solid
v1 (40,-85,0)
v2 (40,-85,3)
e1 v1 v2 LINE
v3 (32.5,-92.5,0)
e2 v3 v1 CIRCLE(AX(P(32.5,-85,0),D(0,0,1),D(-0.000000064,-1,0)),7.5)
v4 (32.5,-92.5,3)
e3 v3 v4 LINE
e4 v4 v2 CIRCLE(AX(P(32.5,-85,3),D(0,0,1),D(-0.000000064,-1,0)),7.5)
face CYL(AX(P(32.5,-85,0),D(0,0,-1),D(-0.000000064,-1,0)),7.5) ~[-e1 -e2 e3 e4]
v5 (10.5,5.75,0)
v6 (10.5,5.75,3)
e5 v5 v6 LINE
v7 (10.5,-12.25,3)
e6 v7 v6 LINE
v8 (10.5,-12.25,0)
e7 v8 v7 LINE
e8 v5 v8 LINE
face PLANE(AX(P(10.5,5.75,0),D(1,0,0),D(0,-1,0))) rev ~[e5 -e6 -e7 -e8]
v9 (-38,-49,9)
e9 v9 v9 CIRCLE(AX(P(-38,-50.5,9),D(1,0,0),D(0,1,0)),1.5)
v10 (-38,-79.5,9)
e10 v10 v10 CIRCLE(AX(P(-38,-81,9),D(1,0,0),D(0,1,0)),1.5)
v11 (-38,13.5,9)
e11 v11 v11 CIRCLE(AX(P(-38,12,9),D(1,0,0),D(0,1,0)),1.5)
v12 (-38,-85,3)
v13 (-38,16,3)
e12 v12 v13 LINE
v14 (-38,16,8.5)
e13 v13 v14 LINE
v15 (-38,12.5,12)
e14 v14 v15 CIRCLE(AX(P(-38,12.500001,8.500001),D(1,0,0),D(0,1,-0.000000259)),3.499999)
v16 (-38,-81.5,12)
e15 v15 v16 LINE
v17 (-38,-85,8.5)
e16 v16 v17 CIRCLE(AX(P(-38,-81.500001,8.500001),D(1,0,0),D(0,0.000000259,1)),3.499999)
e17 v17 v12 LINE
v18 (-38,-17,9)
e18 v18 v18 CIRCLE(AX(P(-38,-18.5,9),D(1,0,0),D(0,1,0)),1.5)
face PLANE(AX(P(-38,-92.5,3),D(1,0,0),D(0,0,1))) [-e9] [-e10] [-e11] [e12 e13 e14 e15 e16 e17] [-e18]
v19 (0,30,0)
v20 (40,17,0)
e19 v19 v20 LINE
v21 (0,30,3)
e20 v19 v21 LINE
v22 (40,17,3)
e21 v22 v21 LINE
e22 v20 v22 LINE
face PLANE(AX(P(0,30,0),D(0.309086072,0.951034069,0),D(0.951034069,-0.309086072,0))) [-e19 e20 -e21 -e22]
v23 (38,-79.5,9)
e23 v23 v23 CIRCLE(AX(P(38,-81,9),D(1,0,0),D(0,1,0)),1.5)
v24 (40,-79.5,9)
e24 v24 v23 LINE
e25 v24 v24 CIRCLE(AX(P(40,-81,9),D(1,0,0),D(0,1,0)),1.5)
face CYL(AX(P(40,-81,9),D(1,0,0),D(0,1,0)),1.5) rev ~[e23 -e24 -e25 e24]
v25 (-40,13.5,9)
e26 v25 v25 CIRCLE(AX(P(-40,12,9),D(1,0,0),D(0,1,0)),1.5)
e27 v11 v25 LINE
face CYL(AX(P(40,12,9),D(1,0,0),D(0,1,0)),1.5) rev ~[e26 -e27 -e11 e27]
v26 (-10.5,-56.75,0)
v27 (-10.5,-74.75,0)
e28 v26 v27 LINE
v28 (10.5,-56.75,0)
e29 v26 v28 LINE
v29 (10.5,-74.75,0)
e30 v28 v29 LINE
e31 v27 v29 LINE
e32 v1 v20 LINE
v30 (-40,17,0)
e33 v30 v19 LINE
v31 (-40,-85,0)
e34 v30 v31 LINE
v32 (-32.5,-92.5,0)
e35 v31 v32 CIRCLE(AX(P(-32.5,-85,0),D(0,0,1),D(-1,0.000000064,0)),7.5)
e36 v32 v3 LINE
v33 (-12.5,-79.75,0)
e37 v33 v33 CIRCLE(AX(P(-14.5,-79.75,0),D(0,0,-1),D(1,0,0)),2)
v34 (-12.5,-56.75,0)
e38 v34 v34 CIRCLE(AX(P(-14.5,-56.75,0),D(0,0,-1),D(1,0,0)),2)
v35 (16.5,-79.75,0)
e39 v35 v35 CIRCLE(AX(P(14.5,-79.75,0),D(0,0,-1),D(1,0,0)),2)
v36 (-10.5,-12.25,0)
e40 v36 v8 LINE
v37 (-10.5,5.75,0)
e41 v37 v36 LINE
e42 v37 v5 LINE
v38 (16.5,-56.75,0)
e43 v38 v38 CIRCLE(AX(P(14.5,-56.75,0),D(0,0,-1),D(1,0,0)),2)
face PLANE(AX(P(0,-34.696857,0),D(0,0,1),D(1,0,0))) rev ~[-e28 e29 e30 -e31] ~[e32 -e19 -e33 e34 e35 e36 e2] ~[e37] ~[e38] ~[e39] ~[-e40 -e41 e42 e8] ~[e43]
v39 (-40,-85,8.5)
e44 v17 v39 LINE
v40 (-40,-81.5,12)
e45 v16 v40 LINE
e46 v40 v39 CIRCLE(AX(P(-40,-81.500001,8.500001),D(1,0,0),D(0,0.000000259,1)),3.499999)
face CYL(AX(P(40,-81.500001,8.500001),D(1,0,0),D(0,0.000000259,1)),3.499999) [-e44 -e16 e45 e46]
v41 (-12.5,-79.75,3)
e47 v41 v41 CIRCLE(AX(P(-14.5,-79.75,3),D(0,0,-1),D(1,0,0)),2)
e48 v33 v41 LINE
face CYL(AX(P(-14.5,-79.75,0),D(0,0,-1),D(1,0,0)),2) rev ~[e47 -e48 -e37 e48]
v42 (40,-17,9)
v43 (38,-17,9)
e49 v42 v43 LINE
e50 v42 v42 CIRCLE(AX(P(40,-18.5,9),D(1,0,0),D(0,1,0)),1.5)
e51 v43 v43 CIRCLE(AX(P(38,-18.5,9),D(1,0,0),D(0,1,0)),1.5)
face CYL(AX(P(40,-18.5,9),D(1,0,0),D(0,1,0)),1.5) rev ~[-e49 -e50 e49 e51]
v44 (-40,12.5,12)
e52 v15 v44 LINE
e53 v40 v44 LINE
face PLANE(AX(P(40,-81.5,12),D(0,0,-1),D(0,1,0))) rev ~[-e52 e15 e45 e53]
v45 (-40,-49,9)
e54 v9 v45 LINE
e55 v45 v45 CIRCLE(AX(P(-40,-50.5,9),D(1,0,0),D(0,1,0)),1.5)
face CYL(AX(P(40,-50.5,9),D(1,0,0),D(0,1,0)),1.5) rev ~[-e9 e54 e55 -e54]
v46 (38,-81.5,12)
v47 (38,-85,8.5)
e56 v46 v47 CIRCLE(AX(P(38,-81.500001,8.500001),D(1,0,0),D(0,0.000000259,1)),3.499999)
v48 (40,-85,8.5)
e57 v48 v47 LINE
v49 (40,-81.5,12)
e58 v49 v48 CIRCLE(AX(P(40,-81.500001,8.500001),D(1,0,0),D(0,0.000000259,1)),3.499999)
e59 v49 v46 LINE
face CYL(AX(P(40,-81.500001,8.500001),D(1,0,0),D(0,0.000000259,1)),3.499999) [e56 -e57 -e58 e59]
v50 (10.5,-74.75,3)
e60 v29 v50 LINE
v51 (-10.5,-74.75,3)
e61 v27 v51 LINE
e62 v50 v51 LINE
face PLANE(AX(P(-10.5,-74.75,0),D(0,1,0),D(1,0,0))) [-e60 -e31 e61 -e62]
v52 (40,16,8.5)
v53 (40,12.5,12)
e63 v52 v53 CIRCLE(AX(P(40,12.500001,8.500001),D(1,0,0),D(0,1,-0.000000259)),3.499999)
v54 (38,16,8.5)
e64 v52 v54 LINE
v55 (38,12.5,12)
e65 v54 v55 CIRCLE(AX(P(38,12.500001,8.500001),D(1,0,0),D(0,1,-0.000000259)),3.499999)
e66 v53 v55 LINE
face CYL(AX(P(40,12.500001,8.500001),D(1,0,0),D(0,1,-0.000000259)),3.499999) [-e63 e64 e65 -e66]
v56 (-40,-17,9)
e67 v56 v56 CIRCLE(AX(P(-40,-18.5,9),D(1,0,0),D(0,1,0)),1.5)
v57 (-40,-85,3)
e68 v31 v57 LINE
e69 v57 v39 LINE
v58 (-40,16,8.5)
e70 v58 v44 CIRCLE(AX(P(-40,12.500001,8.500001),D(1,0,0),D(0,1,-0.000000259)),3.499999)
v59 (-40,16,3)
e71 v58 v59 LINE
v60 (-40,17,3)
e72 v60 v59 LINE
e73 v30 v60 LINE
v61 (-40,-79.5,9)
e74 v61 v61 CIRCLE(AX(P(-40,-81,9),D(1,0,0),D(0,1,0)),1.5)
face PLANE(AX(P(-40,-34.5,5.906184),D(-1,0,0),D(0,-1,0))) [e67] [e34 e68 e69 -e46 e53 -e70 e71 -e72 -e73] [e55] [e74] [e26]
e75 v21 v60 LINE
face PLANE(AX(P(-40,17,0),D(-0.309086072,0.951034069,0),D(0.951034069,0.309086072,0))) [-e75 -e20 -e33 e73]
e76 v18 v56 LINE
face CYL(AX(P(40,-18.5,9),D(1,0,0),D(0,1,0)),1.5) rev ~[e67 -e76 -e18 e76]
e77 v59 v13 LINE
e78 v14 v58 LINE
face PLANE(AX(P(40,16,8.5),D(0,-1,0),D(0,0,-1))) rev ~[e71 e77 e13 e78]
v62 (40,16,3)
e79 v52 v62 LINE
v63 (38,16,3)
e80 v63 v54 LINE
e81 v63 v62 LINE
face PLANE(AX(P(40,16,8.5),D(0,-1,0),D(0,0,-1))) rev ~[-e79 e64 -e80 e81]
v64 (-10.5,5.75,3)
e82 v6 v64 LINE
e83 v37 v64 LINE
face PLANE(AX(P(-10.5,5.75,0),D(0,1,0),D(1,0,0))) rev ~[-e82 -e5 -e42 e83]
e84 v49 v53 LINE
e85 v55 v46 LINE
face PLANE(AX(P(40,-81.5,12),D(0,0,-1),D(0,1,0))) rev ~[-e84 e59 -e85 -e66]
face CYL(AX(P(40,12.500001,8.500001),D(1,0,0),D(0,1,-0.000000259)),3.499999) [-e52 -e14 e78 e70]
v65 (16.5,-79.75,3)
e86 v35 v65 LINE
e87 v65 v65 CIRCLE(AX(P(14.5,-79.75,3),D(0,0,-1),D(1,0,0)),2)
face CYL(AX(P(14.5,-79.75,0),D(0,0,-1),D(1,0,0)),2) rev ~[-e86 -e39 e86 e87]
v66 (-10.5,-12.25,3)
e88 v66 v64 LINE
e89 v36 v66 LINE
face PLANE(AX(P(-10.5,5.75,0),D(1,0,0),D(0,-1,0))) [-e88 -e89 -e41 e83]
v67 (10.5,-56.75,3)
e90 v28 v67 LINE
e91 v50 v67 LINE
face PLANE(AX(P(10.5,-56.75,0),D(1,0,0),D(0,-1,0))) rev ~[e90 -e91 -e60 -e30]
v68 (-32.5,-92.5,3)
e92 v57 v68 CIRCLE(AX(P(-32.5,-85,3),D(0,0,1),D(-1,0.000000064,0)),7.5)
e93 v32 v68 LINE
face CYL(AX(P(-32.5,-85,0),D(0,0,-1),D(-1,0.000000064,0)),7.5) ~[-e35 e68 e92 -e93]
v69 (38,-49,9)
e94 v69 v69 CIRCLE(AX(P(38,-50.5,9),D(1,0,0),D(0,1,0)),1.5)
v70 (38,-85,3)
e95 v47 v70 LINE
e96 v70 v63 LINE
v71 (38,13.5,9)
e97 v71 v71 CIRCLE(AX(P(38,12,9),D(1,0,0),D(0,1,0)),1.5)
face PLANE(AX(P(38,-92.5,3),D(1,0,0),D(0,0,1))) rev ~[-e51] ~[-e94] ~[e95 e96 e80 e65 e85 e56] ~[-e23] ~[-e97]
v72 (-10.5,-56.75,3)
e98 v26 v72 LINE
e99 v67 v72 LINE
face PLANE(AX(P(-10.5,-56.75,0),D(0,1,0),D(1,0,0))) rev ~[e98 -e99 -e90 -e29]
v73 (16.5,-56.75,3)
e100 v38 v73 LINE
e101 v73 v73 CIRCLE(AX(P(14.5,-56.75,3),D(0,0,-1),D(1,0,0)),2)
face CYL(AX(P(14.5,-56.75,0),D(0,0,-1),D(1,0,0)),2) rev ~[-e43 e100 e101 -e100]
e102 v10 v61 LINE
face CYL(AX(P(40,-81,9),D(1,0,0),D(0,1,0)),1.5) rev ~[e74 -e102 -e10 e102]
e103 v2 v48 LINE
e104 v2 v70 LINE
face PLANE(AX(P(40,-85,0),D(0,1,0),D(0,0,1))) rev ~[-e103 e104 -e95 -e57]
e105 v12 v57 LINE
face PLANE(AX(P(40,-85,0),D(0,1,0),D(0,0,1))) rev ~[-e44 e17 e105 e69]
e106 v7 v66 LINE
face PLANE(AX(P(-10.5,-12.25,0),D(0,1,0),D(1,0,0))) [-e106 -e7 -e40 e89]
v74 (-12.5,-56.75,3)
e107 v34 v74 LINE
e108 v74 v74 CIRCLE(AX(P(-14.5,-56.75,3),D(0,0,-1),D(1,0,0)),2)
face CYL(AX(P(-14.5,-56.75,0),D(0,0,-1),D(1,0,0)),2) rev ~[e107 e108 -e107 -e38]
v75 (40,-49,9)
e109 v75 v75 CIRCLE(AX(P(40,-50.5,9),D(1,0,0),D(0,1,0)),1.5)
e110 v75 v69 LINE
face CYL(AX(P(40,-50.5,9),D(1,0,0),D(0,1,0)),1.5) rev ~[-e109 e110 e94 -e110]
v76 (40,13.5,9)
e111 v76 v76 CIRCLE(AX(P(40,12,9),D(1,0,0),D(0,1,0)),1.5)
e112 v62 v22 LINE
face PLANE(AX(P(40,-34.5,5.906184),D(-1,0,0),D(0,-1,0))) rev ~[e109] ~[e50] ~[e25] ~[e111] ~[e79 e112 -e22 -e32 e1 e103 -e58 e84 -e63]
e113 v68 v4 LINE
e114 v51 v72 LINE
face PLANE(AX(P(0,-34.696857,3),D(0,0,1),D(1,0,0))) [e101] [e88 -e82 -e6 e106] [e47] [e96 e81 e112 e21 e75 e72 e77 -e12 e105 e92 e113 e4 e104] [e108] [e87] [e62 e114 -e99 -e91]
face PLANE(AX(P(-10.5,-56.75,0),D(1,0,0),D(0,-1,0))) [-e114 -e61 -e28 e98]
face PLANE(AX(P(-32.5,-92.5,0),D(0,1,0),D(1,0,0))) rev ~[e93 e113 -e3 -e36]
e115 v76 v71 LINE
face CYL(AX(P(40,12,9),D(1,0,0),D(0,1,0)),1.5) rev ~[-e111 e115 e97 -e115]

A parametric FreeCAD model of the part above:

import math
import FreeCAD as App
import Part
import Sketcher
from FreeCAD import Vector

doc = App.newDocument("Part")
body = doc.addObject("PartDesign::Body", "Body")

# Sketch on XY plane
sketch1 = body.newObject("Sketcher::SketchObject", "Sketch")
sketch1.AttachmentSupport = (doc.getObject("XY_Plane"), [""])
sketch1.MapMode = "FlatFace"
sketch1.addGeometry(Part.ArcOfCircle(Part.Circle(Vector(-33, -85, 0), Vector(0, 0, 1), 7), math.radians(180), math.radians(270)), False)
sketch1.addGeometry(Part.LineSegment(Vector(-32, -92, 0), Vector(32, -92, 0)), False)
sketch1.addGeometry(Part.ArcOfCircle(Part.Circle(Vector(33, -85, 0), Vector(0, 0, 1), 7), math.radians(-90), math.radians(0)), False)
sketch1.addGeometry(Part.LineSegment(Vector(40, -85, 0), Vector(40, 17, 0)), False)
sketch1.addGeometry(Part.LineSegment(Vector(40, 17, 0), Vector(0, 30, 0)), False)
sketch1.addGeometry(Part.LineSegment(Vector(0, 30, 0), Vector(-40, 17, 0)), False)
sketch1.addGeometry(Part.LineSegment(Vector(-40, 17, 0), Vector(-40, -85, 0)), False)
sketch1.addConstraint(Sketcher.Constraint("Tangent", 0, 2, 1, 1))
sketch1.addConstraint(Sketcher.Constraint("Tangent", 1, 2, 2, 1))
sketch1.addConstraint(Sketcher.Constraint("Tangent", 2, 2, 3, 1))
sketch1.addConstraint(Sketcher.Constraint("Coincident", 3, 2, 4, 1))
sketch1.addConstraint(Sketcher.Constraint("Coincident", 4, 2, 5, 1))
sketch1.addConstraint(Sketcher.Constraint("Coincident", 5, 2, 6, 1))
sketch1.addConstraint(Sketcher.Constraint("Tangent", 6, 2, 0, 1))
sketch1.addConstraint(Sketcher.Constraint("Horizontal", 1))
sketch1.addConstraint(Sketcher.Constraint("Vertical", 3))
sketch1.addConstraint(Sketcher.Constraint("Vertical", 6))
sketch1.addConstraint(Sketcher.Constraint("Equal", 0, 2))
sketch1.addConstraint(Sketcher.Constraint("Symmetric", 3, 2, 5, 2, -2))
sketch1.addConstraint(Sketcher.Constraint("PointOnObject", 4, 2, -2))
sketch1.addConstraint(Sketcher.Constraint("Radius", 0, 7.5))
sketch1.addConstraint(Sketcher.Constraint("DistanceX", 1, 1, 1, 2, 65.0))
sketch1.addConstraint(Sketcher.Constraint("DistanceY", 3, 1, 3, 2, 102.0))
sketch1.addConstraint(Sketcher.Constraint("DistanceY", 0, 3, -1, 1, 85.0))
sketch1.addConstraint(Sketcher.Constraint("DistanceY", -1, 1, 4, 2, 30.0))
pad1 = body.newObject("PartDesign::Pad", "Pad")
pad1.Profile = sketch1
pad1.Length = 3

# Sketch on YZ plane
sketch2 = body.newObject("Sketcher::SketchObject", "Sketch001")
sketch2.AttachmentSupport = (doc.getObject("YZ_Plane"), [""])
sketch2.MapMode = "FlatFace"
sketch2.AttachmentOffset = App.Placement(Vector(0, 0, 40), App.Rotation())
sketch2.addGeometry(Part.LineSegment(Vector(12.5, 12, 0), Vector(-81.5, 12, 0)), False)
sketch2.addGeometry(Part.ArcOfCircle(Part.Circle(Vector(-81.5, 8.5, 0), Vector(0, 0, 1), 3.5), math.radians(90), math.radians(180)), False)
sketch2.addGeometry(Part.LineSegment(Vector(-85, 8.5, 0), Vector(-85, 0, 0)), False)
sketch2.addGeometry(Part.LineSegment(Vector(-85, 0, 0), Vector(16, 0, 0)), False)
sketch2.addGeometry(Part.LineSegment(Vector(16, 0, 0), Vector(16, 8.5, 0)), False)
sketch2.addGeometry(Part.ArcOfCircle(Part.Circle(Vector(12.5, 8.5, 0), Vector(0, 0, 1), 3.5), math.radians(0), math.radians(90)), False)
sketch2.addGeometry(Part.Circle(Vector(12, 9, 0), Vector(0, 0, 1), 1.5), False)
sketch2.addGeometry(Part.Circle(Vector(-18.5, 9, 0), Vector(0, 0, 1), 1.5), False)
sketch2.addGeometry(Part.Circle(Vector(-50.5, 9, 0), Vector(0, 0, 1), 1.5), False)
sketch2.addGeometry(Part.Circle(Vector(-81, 9, 0), Vector(0, 0, 1), 1.5), False)
sketch2.addConstraint(Sketcher.Constraint("Tangent", 0, 2, 1, 1))
sketch2.addConstraint(Sketcher.Constraint("Tangent", 1, 2, 2, 1))
sketch2.addConstraint(Sketcher.Constraint("Coincident", 2, 2, 3, 1))
sketch2.addConstraint(Sketcher.Constraint("Coincident", 3, 2, 4, 1))
sketch2.addConstraint(Sketcher.Constraint("Tangent", 4, 2, 5, 1))
sketch2.addConstraint(Sketcher.Constraint("Tangent", 5, 2, 0, 1))
sketch2.addConstraint(Sketcher.Constraint("Horizontal", 0))
sketch2.addConstraint(Sketcher.Constraint("Vertical", 2))
sketch2.addConstraint(Sketcher.Constraint("Horizontal", 3))
sketch2.addConstraint(Sketcher.Constraint("Vertical", 4))
sketch2.addConstraint(Sketcher.Constraint("Equal", 1, 5))
sketch2.addConstraint(Sketcher.Constraint("Equal", 6, 7))
sketch2.addConstraint(Sketcher.Constraint("Equal", 7, 8))
sketch2.addConstraint(Sketcher.Constraint("Equal", 8, 9))
sketch2.addConstraint(Sketcher.Constraint("PointOnObject", 2, 2, -1))
sketch2.addConstraint(Sketcher.Constraint("Horizontal", 6, 3, 7, 3))
sketch2.addConstraint(Sketcher.Constraint("Horizontal", 7, 3, 8, 3))
sketch2.addConstraint(Sketcher.Constraint("Horizontal", 8, 3, 9, 3))
sketch2.addConstraint(Sketcher.Constraint("Diameter", 6, 3.0))
sketch2.addConstraint(Sketcher.Constraint("Radius", 1, 3.499999))
sketch2.addConstraint(Sketcher.Constraint("DistanceX", 0, 2, 0, 1, 94.0))
sketch2.addConstraint(Sketcher.Constraint("DistanceY", 2, 2, 2, 1, 8.5))
sketch2.addConstraint(Sketcher.Constraint("DistanceX", -1, 1, 6, 3, 12.0))
sketch2.addConstraint(Sketcher.Constraint("DistanceY", -1, 1, 6, 3, 9.0))
sketch2.addConstraint(Sketcher.Constraint("DistanceX", 9, 3, -1, 1, 81.0))
sketch2.addConstraint(Sketcher.Constraint("DistanceX", 1, 2, -1, 1, 85.0))
sketch2.addConstraint(Sketcher.Constraint("DistanceX", 7, 3, 5, 3, 31.000001))
sketch2.addConstraint(Sketcher.Constraint("DistanceX", 1, 3, 8, 3, 31.000001))
pad2 = body.newObject("PartDesign::Pad", "Pad001")
pad2.Profile = sketch2
pad2.Length = 80
pad2.Reversed = True

# Sketch on XZ plane
sketch3 = body.newObject("Sketcher::SketchObject", "Sketch002")
sketch3.AttachmentSupport = (doc.getObject("XZ_Plane"), [""])
sketch3.MapMode = "FlatFace"
sketch3.AttachmentOffset = App.Placement(Vector(0, 0, 92.5), App.Rotation())
sketch3.addGeometry(Part.LineSegment(Vector(-38, 13, 0), Vector(-38, 3, 0)), False)
sketch3.addGeometry(Part.LineSegment(Vector(-38, 3, 0), Vector(38, 3, 0)), False)
sketch3.addGeometry(Part.LineSegment(Vector(38, 3, 0), Vector(38, 13, 0)), False)
sketch3.addGeometry(Part.LineSegment(Vector(38, 13, 0), Vector(-38, 13, 0)), False)
sketch3.addConstraint(Sketcher.Constraint("Coincident", 0, 2, 1, 1))
sketch3.addConstraint(Sketcher.Constraint("Coincident", 1, 2, 2, 1))
sketch3.addConstraint(Sketcher.Constraint("Coincident", 2, 2, 3, 1))
sketch3.addConstraint(Sketcher.Constraint("Coincident", 3, 2, 0, 1))
sketch3.addConstraint(Sketcher.Constraint("Vertical", 0))
sketch3.addConstraint(Sketcher.Constraint("Horizontal", 1))
sketch3.addConstraint(Sketcher.Constraint("Vertical", 2))
sketch3.addConstraint(Sketcher.Constraint("Horizontal", 3))
sketch3.addConstraint(Sketcher.Constraint("DistanceX", 1, 1, 1, 2, 76.0))
sketch3.addConstraint(Sketcher.Constraint("DistanceY", 0, 2, 0, 1, 10.0))
sketch3.addConstraint(Sketcher.Constraint("DistanceX", 0, 2, -1, 1, 38.0))
sketch3.addConstraint(Sketcher.Constraint("DistanceY", -1, 1, 0, 2, 3.0))
pocket1 = body.newObject("PartDesign::Pocket", "Pocket")
pocket1.Profile = sketch3
pocket1.Length = 700

# Sketch on XY plane
sketch4 = body.newObject("Sketcher::SketchObject", "Sketch003")
sketch4.AttachmentSupport = (doc.getObject("XY_Plane"), [""])
sketch4.MapMode = "FlatFace"
sketch4.addGeometry(Part.Circle(Vector(14.5, -79.8, 0), Vector(0, 0, 1), 2), False)
sketch4.addGeometry(Part.Circle(Vector(-14.5, -79.8, 0), Vector(0, 0, 1), 2), False)
sketch4.addGeometry(Part.Circle(Vector(-14.5, -56.8, 0), Vector(0, 0, 1), 2), False)
sketch4.addGeometry(Part.Circle(Vector(14.5, -56.8, 0), Vector(0, 0, 1), 2), False)
sketch4.addGeometry(Part.LineSegment(Vector(-10.5, -74.8, 0), Vector(-10.5, -56.8, 0)), False)
sketch4.addGeometry(Part.LineSegment(Vector(-10.5, -56.8, 0), Vector(10.5, -56.8, 0)), False)
sketch4.addGeometry(Part.LineSegment(Vector(10.5, -56.8, 0), Vector(10.5, -74.8, 0)), False)
sketch4.addGeometry(Part.LineSegment(Vector(10.5, -74.8, 0), Vector(-10.5, -74.8, 0)), False)
sketch4.addGeometry(Part.LineSegment(Vector(-10.5, -12.2, 0), Vector(-10.5, 5.8, 0)), False)
sketch4.addGeometry(Part.LineSegment(Vector(-10.5, 5.8, 0), Vector(10.5, 5.8, 0)), False)
sketch4.addGeometry(Part.LineSegment(Vector(10.5, 5.8, 0), Vector(10.5, -12.2, 0)), False)
sketch4.addGeometry(Part.LineSegment(Vector(10.5, -12.2, 0), Vector(-10.5, -12.2, 0)), False)
sketch4.addConstraint(Sketcher.Constraint("Coincident", 4, 2, 5, 1))
sketch4.addConstraint(Sketcher.Constraint("Coincident", 5, 2, 6, 1))
sketch4.addConstraint(Sketcher.Constraint("Coincident", 6, 2, 7, 1))
sketch4.addConstraint(Sketcher.Constraint("Coincident", 7, 2, 4, 1))
sketch4.addConstraint(Sketcher.Constraint("Coincident", 8, 2, 9, 1))
sketch4.addConstraint(Sketcher.Constraint("Coincident", 9, 2, 10, 1))
sketch4.addConstraint(Sketcher.Constraint("Coincident", 10, 2, 11, 1))
sketch4.addConstraint(Sketcher.Constraint("Coincident", 11, 2, 8, 1))
sketch4.addConstraint(Sketcher.Constraint("Vertical", 4))
sketch4.addConstraint(Sketcher.Constraint("Horizontal", 5))
sketch4.addConstraint(Sketcher.Constraint("Vertical", 6))
sketch4.addConstraint(Sketcher.Constraint("Horizontal", 7))
sketch4.addConstraint(Sketcher.Constraint("Vertical", 8))
sketch4.addConstraint(Sketcher.Constraint("Horizontal", 9))
sketch4.addConstraint(Sketcher.Constraint("Vertical", 10))
sketch4.addConstraint(Sketcher.Constraint("Horizontal", 11))
sketch4.addConstraint(Sketcher.Constraint("Equal", 0, 1))
sketch4.addConstraint(Sketcher.Constraint("Equal", 1, 2))
sketch4.addConstraint(Sketcher.Constraint("Equal", 2, 3))
sketch4.addConstraint(Sketcher.Constraint("Symmetric", 0, 3, 1, 3, -2))
sketch4.addConstraint(Sketcher.Constraint("Symmetric", 2, 3, 3, 3, -2))
sketch4.addConstraint(Sketcher.Constraint("Horizontal", 3, 3, 4, 2))
sketch4.addConstraint(Sketcher.Constraint("Vertical", 1, 3, 2, 3))
sketch4.addConstraint(Sketcher.Constraint("Vertical", 7, 2, 8, 2))
sketch4.addConstraint(Sketcher.Constraint("Vertical", 6, 2, 9, 2))
sketch4.addConstraint(Sketcher.Constraint("Equal", 6, 8))
sketch4.addConstraint(Sketcher.Constraint("Diameter", 0, 4.0))
sketch4.addConstraint(Sketcher.Constraint("DistanceX", 5, 1, 5, 2, 21.0))
sketch4.addConstraint(Sketcher.Constraint("DistanceY", 4, 1, 4, 2, 18.0))
sketch4.addConstraint(Sketcher.Constraint("DistanceX", 1, 3, 0, 3, 29.0))
sketch4.addConstraint(Sketcher.Constraint("DistanceY", 1, 3, 2, 3, 23.0))
sketch4.addConstraint(Sketcher.Constraint("DistanceX", 2, 3, 4, 2, 4.0))
sketch4.addConstraint(Sketcher.Constraint("DistanceY", 4, 2, 8, 2, 62.5))
sketch4.addConstraint(Sketcher.Constraint("DistanceY", 0, 3, -1, 1, 79.75))
pocket2 = body.newObject("PartDesign::Pocket", "Pocket001")
pocket2.Profile = sketch4
pocket2.Length = 5
pocket2.Reversed = True

doc.recompute()
